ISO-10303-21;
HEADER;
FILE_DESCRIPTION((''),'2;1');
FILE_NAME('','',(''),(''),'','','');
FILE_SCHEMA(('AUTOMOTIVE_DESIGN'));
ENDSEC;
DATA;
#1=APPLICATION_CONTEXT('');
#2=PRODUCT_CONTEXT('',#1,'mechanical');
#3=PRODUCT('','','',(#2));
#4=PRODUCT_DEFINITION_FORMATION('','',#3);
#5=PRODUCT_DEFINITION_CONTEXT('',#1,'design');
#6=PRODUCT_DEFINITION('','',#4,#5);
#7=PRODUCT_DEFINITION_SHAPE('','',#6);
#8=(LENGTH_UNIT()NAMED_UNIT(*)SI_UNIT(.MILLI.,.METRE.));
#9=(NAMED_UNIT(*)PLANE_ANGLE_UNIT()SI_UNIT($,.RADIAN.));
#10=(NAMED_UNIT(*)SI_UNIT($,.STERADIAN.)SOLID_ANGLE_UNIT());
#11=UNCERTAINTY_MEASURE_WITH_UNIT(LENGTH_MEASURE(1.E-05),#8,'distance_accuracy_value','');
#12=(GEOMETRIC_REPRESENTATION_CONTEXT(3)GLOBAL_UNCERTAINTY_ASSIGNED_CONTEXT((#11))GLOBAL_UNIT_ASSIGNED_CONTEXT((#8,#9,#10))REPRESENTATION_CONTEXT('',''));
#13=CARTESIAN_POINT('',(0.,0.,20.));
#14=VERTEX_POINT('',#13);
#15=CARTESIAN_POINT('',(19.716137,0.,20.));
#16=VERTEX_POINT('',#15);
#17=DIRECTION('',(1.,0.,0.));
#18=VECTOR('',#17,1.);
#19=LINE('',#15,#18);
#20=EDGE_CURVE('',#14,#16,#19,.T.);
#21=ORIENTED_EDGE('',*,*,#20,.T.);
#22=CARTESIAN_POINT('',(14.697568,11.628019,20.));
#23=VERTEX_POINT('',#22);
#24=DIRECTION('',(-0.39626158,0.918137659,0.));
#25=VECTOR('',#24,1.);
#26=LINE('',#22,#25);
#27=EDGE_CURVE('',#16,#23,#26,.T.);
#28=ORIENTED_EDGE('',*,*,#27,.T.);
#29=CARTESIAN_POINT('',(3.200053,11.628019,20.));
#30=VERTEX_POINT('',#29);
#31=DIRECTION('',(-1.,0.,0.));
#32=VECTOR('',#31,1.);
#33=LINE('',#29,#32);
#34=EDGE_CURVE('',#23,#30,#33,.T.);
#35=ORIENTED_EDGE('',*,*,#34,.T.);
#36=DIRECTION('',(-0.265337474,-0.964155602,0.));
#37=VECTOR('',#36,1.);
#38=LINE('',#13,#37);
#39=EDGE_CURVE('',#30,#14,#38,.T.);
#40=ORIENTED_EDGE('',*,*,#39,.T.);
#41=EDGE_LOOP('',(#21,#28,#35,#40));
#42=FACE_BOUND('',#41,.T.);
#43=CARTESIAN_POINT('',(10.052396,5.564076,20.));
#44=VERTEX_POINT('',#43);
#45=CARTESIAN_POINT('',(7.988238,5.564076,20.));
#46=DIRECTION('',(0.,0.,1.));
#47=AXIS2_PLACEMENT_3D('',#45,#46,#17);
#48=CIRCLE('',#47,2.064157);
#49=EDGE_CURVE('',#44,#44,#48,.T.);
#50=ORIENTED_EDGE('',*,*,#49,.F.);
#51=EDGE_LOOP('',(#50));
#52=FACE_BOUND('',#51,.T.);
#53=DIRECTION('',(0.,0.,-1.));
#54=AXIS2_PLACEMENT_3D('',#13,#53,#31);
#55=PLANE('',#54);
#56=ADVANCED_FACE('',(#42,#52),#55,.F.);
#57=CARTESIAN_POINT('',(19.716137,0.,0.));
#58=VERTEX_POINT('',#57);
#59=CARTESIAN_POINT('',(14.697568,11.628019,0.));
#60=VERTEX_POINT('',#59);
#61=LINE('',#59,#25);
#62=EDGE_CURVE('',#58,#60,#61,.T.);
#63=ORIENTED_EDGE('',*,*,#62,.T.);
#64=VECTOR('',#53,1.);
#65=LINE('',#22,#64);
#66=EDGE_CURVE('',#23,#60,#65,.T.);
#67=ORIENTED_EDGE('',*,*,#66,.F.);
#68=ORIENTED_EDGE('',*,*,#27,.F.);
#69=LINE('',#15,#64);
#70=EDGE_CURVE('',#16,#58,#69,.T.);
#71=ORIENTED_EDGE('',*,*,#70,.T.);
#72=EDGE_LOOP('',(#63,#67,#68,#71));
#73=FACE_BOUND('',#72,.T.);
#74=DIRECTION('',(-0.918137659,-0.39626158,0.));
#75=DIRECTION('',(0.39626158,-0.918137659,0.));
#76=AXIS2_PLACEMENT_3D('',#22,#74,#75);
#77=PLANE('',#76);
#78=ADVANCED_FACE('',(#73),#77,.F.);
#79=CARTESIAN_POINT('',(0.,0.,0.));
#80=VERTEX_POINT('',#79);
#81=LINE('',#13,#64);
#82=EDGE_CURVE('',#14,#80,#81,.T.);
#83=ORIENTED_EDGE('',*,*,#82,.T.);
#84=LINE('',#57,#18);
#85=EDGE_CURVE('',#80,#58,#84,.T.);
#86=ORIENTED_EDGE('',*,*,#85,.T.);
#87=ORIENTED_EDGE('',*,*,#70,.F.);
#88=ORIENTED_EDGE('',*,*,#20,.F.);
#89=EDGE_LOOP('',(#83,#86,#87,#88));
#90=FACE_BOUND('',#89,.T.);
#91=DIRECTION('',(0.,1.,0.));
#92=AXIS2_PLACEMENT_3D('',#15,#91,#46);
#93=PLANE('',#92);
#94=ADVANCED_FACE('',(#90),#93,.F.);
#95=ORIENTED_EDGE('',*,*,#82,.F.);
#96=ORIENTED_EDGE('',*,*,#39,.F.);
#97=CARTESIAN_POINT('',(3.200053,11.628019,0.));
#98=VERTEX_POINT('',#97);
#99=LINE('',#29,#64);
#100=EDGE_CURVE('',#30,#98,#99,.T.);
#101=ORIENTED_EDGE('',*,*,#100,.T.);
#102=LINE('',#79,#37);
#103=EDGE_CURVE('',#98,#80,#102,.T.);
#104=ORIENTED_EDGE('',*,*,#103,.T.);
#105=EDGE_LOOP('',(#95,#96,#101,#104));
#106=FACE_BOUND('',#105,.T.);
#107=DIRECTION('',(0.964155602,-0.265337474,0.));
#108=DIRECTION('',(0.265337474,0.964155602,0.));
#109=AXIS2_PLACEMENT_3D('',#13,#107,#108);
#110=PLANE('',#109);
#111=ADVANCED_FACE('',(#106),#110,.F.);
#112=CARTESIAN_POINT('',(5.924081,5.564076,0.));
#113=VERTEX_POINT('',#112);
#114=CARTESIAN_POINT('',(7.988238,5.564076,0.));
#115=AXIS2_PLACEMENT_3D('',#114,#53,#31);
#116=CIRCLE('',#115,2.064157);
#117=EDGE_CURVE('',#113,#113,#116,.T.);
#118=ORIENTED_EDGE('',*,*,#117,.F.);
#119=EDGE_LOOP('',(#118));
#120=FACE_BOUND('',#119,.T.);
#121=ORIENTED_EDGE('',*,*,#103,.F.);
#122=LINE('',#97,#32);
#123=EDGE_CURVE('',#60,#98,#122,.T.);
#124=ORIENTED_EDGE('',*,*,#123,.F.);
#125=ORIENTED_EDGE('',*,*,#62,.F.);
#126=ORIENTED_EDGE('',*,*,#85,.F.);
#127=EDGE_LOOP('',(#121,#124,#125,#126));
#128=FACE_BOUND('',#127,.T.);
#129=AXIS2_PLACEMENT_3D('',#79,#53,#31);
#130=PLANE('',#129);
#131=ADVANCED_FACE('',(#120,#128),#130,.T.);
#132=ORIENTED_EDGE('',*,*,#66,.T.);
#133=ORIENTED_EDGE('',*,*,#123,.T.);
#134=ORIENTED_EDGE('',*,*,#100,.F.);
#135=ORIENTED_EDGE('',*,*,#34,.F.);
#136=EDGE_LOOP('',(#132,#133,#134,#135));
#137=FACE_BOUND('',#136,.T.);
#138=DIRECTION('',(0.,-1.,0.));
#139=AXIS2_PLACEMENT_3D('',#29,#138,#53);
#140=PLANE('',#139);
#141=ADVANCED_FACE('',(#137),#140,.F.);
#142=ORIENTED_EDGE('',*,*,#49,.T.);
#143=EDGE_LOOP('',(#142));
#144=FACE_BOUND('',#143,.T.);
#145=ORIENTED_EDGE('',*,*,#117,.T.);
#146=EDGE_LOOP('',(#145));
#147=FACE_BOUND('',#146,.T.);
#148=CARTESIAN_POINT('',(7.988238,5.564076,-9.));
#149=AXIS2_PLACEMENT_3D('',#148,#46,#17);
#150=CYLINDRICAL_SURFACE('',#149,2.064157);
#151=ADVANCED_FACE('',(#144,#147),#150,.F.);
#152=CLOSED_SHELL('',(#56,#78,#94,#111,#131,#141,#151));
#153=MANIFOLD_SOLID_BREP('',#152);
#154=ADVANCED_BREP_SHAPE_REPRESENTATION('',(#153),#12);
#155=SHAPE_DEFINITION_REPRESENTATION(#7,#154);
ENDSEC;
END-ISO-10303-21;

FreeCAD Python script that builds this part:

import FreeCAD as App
import Part
import Sketcher

V = App.Vector

doc = App.newDocument("Part")
body = doc.addObject("PartDesign::Body", "Body")

# Sketch on XY plane
sketch1 = doc.addObject("Sketcher::SketchObject", "Sketch")
body.addObject(sketch1)
sketch1.AttachmentSupport = (doc.XY_Plane, [""])
sketch1.MapMode = "FlatFace"
sketch1.addGeometry([
    Part.LineSegment(V(3, 12, 0), V(0, 0, 0)),
    Part.LineSegment(V(0, 0, 0), V(20, 0, 0)),
    Part.LineSegment(V(20, 0, 0), V(15, 12, 0)),
    Part.LineSegment(V(15, 12, 0), V(3, 12, 0)),
], False)
sketch1.addConstraint([
    Sketcher.Constraint("Coincident", 0, 2, 1, 1),
    Sketcher.Constraint("Coincident", 1, 2, 2, 1),
    Sketcher.Constraint("Coincident", 2, 2, 3, 1),
    Sketcher.Constraint("Coincident", 3, 2, 0, 1),
    Sketcher.Constraint("Horizontal", 1),
    Sketcher.Constraint("Horizontal", 3),
    Sketcher.Constraint("Coincident", 0, 2, -1, 1),
    Sketcher.Constraint("Distance", 2, 12.664788),
    Sketcher.Constraint("DistanceX", 1, 1, 1, 2, 19.716137),
    Sketcher.Constraint("DistanceX", 3, 2, 3, 1, 11.497515),
    Sketcher.Constraint("DistanceY", -1, 1, 2, 2, 11.628019),
])
pad1 = doc.addObject("PartDesign::Pad", "Pad")
body.addObject(pad1)
pad1.Profile = sketch1
pad1.Length = 20

# Sketch on XY plane
sketch2 = doc.addObject("Sketcher::SketchObject", "Sketch001")
body.addObject(sketch2)
sketch2.AttachmentSupport = (doc.XY_Plane, [""])
sketch2.MapMode = "FlatFace"
sketch2.AttachmentOffset = App.Placement(V(0, 0, 20), App.Rotation())
sketch2.addGeometry(Part.Circle(V(8, 5.6, 0), V(0, 0, 1), 2.1), False)
sketch2.addConstraint([
    Sketcher.Constraint("Diameter", 0, 4.128314),
    Sketcher.Constraint("DistanceX", -1, 1, 0, 3, 7.988238),
    Sketcher.Constraint("DistanceY", -1, 1, 0, 3, 5.564076),
])
pocket1 = doc.addObject("PartDesign::Pocket", "Pocket")
body.addObject(pocket1)
pocket1.Profile = sketch2
pocket1.Length = 29

doc.recompute()
